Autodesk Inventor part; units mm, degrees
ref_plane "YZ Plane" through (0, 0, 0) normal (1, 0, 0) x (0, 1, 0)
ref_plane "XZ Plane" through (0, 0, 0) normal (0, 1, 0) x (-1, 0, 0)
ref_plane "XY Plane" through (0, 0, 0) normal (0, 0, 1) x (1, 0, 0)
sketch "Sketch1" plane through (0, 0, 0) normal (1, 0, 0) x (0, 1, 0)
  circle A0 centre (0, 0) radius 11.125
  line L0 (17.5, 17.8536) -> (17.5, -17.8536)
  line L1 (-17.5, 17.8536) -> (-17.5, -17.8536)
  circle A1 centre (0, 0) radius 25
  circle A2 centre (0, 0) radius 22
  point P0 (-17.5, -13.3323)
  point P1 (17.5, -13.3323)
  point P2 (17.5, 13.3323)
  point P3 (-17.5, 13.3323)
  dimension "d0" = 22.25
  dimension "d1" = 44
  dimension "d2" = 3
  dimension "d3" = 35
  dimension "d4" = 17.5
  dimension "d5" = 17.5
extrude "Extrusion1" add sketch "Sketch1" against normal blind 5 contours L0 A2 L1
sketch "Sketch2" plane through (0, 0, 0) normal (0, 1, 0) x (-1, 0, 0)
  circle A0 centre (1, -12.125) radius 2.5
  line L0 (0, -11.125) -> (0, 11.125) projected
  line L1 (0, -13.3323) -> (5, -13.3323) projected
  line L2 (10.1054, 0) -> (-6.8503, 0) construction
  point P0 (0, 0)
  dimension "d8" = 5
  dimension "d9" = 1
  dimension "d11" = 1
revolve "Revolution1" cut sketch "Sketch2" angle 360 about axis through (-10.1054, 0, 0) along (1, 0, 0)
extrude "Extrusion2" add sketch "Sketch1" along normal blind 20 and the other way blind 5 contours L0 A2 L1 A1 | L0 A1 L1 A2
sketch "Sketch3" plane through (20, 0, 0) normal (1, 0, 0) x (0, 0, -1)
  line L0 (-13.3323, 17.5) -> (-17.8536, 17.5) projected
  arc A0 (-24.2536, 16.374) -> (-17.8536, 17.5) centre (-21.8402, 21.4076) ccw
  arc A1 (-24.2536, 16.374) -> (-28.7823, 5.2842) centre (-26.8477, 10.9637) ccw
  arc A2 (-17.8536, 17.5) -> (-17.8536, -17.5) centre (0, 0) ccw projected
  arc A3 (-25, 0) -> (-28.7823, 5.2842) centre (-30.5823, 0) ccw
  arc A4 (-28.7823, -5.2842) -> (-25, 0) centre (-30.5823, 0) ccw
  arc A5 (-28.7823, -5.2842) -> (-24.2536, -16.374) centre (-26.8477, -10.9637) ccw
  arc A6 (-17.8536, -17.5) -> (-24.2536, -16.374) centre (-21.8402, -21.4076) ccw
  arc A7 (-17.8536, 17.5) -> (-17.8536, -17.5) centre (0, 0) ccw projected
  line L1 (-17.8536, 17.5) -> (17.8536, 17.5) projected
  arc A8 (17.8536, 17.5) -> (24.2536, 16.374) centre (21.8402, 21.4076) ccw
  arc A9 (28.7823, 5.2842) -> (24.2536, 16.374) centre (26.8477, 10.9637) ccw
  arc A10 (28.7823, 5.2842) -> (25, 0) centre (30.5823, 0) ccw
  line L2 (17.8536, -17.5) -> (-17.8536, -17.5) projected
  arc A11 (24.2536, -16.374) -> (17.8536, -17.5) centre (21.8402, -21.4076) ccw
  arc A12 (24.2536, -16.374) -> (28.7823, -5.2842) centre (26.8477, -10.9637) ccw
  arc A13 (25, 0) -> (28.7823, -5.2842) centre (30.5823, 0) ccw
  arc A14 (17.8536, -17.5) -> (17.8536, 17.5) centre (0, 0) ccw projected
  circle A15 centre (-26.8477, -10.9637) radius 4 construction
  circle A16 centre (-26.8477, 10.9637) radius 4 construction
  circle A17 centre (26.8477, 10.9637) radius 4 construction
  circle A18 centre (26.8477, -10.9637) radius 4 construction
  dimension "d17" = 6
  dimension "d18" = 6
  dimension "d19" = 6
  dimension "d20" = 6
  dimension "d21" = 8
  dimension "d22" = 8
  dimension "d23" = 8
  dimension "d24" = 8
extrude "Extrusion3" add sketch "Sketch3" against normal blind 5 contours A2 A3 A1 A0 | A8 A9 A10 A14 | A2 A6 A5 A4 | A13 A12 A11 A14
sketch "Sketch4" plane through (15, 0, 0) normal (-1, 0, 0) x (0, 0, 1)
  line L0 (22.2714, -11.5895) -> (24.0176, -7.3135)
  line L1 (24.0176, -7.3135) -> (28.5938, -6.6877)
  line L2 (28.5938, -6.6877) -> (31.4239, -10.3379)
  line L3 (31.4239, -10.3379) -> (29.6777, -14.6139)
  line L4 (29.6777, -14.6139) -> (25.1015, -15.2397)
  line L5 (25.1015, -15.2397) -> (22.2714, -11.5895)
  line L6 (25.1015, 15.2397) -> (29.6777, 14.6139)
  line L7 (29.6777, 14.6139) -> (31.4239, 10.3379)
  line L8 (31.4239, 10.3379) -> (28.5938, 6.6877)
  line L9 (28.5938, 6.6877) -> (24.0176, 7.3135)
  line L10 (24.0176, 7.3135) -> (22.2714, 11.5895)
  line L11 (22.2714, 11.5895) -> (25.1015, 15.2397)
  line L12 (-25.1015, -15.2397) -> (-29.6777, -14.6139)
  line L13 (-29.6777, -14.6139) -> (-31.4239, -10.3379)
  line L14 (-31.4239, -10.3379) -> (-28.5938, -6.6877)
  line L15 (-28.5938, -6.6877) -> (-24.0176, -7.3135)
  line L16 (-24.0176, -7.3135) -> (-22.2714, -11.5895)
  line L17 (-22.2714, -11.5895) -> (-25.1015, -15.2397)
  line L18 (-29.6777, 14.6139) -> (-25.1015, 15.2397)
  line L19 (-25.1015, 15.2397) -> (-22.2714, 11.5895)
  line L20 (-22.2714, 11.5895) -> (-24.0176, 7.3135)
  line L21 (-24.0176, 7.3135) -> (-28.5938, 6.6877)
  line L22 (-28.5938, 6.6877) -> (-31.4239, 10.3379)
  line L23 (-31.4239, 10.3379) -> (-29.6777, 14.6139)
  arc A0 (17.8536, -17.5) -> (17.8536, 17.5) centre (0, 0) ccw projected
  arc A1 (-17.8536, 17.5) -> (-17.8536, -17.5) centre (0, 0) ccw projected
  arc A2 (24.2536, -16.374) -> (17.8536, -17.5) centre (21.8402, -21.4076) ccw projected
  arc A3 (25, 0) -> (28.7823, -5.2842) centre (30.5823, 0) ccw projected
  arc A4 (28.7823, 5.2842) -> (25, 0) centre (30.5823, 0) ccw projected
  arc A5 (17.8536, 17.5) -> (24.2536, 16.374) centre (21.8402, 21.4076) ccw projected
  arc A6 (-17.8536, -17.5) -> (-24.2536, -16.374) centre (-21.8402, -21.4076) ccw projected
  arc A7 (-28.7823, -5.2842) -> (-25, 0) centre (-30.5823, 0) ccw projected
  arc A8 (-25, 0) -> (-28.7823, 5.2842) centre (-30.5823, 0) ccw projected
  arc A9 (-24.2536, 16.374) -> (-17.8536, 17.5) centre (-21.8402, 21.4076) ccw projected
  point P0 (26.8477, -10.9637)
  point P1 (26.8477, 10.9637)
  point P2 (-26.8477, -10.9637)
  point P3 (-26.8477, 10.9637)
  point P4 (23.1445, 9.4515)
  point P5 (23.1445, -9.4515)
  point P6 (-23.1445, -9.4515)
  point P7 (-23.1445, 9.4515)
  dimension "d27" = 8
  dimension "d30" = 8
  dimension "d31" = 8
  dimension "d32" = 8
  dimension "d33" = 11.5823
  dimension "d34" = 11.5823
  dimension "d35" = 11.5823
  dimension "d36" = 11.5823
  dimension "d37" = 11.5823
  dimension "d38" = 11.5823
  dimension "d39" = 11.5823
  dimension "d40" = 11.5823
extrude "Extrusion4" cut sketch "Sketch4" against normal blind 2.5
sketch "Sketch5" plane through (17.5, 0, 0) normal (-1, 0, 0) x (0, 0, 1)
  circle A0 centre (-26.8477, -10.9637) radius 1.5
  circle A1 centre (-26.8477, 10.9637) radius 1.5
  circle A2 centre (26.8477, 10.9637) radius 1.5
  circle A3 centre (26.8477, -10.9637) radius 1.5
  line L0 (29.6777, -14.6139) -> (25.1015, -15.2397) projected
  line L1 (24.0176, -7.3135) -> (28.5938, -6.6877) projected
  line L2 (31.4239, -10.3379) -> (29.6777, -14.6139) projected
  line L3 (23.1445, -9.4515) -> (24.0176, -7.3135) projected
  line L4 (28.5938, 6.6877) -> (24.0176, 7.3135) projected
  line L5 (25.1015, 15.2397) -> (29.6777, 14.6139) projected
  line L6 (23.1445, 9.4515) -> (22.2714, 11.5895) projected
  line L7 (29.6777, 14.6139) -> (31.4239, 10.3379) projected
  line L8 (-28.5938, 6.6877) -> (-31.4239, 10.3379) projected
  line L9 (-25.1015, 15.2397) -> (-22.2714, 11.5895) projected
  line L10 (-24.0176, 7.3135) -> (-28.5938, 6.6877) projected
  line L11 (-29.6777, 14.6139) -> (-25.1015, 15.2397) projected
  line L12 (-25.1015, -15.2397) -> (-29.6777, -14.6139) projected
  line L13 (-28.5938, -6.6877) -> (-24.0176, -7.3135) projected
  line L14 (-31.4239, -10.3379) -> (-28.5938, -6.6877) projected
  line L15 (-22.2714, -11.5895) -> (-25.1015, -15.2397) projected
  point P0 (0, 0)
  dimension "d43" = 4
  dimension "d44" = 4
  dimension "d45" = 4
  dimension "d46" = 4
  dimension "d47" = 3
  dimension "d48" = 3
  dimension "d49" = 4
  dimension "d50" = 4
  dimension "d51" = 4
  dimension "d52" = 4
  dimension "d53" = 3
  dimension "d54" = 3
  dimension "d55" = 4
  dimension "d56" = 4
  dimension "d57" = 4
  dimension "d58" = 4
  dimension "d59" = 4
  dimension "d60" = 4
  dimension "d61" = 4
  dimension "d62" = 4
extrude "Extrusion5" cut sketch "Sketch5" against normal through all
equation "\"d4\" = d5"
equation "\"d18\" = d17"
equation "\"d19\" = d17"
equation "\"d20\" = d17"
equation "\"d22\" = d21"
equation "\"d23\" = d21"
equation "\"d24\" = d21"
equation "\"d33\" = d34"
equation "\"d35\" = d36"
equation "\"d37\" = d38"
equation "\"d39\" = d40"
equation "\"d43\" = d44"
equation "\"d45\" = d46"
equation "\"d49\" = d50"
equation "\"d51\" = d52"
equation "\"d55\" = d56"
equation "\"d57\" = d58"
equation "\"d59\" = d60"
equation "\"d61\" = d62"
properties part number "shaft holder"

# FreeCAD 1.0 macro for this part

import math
import FreeCAD as App
import Part
import Sketcher


def add_polygon(sketch, points):
    """Adds a closed chain of lines whose ends are joined by coincident constraints."""
    first, n = sketch.GeometryCount, len(points)
    for a, b in zip(points, points[1:] + points[:1]):
        sketch.addGeometry(Part.LineSegment(App.Vector(*a, 0), App.Vector(*b, 0)), False)
    for i in range(n):
        sketch.addConstraint(Sketcher.Constraint("Coincident", first + i, 2, first + (i + 1) % n, 1))

doc = App.newDocument("Part")
body = doc.addObject("PartDesign::Body", "Body")

# Sketch on YZ plane
sketch1 = body.newObject("Sketcher::SketchObject", "Sketch")
sketch1.AttachmentSupport = (doc.getObject("YZ_Plane"), [""])
sketch1.MapMode = "FlatFace"
sketch1.addGeometry(Part.LineSegment(App.Vector(18, -13, 0), App.Vector(18, 13, 0)), False)
sketch1.addGeometry(Part.ArcOfCircle(Part.Circle(App.Vector(0, 0, 0), App.Vector(0, 0, 1), 22), math.radians(37), math.radians(143)), False)
sketch1.addGeometry(Part.LineSegment(App.Vector(-18, 13, 0), App.Vector(-18, -13, 0)), False)
sketch1.addGeometry(Part.ArcOfCircle(Part.Circle(App.Vector(0, 0, 0), App.Vector(0, 0, 1), 22), math.radians(-143), math.radians(-37)), False)
sketch1.addGeometry(Part.Circle(App.Vector(0, 0, 0), App.Vector(0, 0, 1), 11), False)
sketch1.addConstraint(Sketcher.Constraint("Coincident", 0, 2, 1, 1))
sketch1.addConstraint(Sketcher.Constraint("Coincident", 1, 2, 2, 1))
sketch1.addConstraint(Sketcher.Constraint("Coincident", 2, 2, 3, 1))
sketch1.addConstraint(Sketcher.Constraint("Coincident", 3, 2, 0, 1))
sketch1.addConstraint(Sketcher.Constraint("Vertical", 0))
sketch1.addConstraint(Sketcher.Constraint("Vertical", 2))
sketch1.addConstraint(Sketcher.Constraint("Coincident", 1, 3, -1, 1))
sketch1.addConstraint(Sketcher.Constraint("Coincident", 3, 3, -1, 1))
sketch1.addConstraint(Sketcher.Constraint("Coincident", 4, 3, -1, 1))
sketch1.addConstraint(Sketcher.Constraint("Equal", 1, 3))
sketch1.addConstraint(Sketcher.Constraint("Horizontal", 0, 2, 1, 2))
sketch1.addConstraint(Sketcher.Constraint("Radius", 1, 22.0))
sketch1.addConstraint(Sketcher.Constraint("Diameter", 4, 22.25))
sketch1.addConstraint(Sketcher.Constraint("DistanceX", 1, 2, 0, 2, 35.0))
pad1 = body.newObject("PartDesign::Pad", "Pad")
pad1.Profile = sketch1
pad1.Length = 5
pad1.Reversed = True

# Sketch on XZ plane
sketch2 = body.newObject("Sketcher::SketchObject", "Sketch001")
sketch2.AttachmentSupport = (doc.getObject("XZ_Plane"), [""])
sketch2.MapMode = "FlatFace"
sketch2.addGeometry(Part.Circle(App.Vector(-1, -12.1, 0), App.Vector(0, 0, 1), 2.5), False)
sketch2.addConstraint(Sketcher.Constraint("Diameter", 0, 5.0))
sketch2.addConstraint(Sketcher.Constraint("DistanceX", 0, 3, -1, 1, 1.0))
sketch2.addConstraint(Sketcher.Constraint("DistanceY", 0, 3, -1, 1, 12.125))
groove = body.newObject("PartDesign::Groove", "Groove")
groove.Profile = sketch2
groove.ReferenceAxis = (sketch2, ["H_Axis"])
groove.Angle = 360

# Sketch on YZ plane
sketch3 = body.newObject("Sketcher::SketchObject", "Sketch002")
sketch3.AttachmentSupport = (doc.getObject("YZ_Plane"), [""])
sketch3.MapMode = "FlatFace"
sketch3.addGeometry(Part.LineSegment(App.Vector(17.5, 13.3, 0), App.Vector(17.5, 17.9, 0)), False)
sketch3.addGeometry(Part.ArcOfCircle(Part.Circle(App.Vector(0, 0, 0), App.Vector(0, 0, 1), 25), math.radians(46), math.radians(134)), False)
sketch3.addGeometry(Part.LineSegment(App.Vector(-17.5, 17.9, 0), App.Vector(-17.5, 13.3, 0)), False)
sketch3.addGeometry(Part.ArcOfCircle(Part.Circle(App.Vector(0, 0, 0), App.Vector(0, 0, 1), 22), math.radians(37), math.radians(143)), False)
sketch3.addGeometry(Part.LineSegment(App.Vector(17.5, -17.9, 0), App.Vector(17.5, -13.3, 0)), False)
sketch3.addGeometry(Part.ArcOfCircle(Part.Circle(App.Vector(0, 0, 0), App.Vector(0, 0, 1), 22), math.radians(-143), math.radians(-37)), False)
sketch3.addGeometry(Part.LineSegment(App.Vector(-17.5, -13.3, 0), App.Vector(-17.5, -17.9, 0)), False)
sketch3.addGeometry(Part.ArcOfCircle(Part.Circle(App.Vector(0, 0, 0), App.Vector(0, 0, 1), 25), math.radians(-134), math.radians(-46)), False)
sketch3.addConstraint(Sketcher.Constraint("Coincident", 0, 2, 1, 1))
sketch3.addConstraint(Sketcher.Constraint("Coincident", 1, 2, 2, 1))
sketch3.addConstraint(Sketcher.Constraint("Coincident", 2, 2, 3, 2))
sketch3.addConstraint(Sketcher.Constraint("Coincident", 3, 1, 0, 1))
sketch3.addConstraint(Sketcher.Constraint("Coincident", 4, 2, 5, 2))
sketch3.addConstraint(Sketcher.Constraint("Coincident", 5, 1, 6, 1))
sketch3.addConstraint(Sketcher.Constraint("Coincident", 6, 2, 7, 1))
sketch3.addConstraint(Sketcher.Constraint("Coincident", 7, 2, 4, 1))
sketch3.addConstraint(Sketcher.Constraint("Vertical", 0))
sketch3.addConstraint(Sketcher.Constraint("Vertical", 2))
sketch3.addConstraint(Sketcher.Constraint("Vertical", 4))
sketch3.addConstraint(Sketcher.Constraint("Vertical", 6))
sketch3.addConstraint(Sketcher.Constraint("Coincident", 1, 3, -1, 1))
sketch3.addConstraint(Sketcher.Constraint("Coincident", 3, 3, -1, 1))
sketch3.addConstraint(Sketcher.Constraint("Coincident", 5, 3, -1, 1))
sketch3.addConstraint(Sketcher.Constraint("Coincident", 7, 3, -1, 1))
sketch3.addConstraint(Sketcher.Constraint("Equal", 3, 5))
sketch3.addConstraint(Sketcher.Constraint("Equal", 1, 7))
sketch3.addConstraint(Sketcher.Constraint("Horizontal", 0, 2, 1, 2))
sketch3.addConstraint(Sketcher.Constraint("Horizontal", 4, 2, 5, 1))
sketch3.addConstraint(Sketcher.Constraint("Vertical", 3, 1, 4, 2))
sketch3.addConstraint(Sketcher.Constraint("Radius", 3, 22.0))
sketch3.addConstraint(Sketcher.Constraint("Radius", 1, 25.0))
sketch3.addConstraint(Sketcher.Constraint("DistanceX", 1, 2, 0, 2, 35.0))
pad2 = body.newObject("PartDesign::Pad", "Pad001")
pad2.Profile = sketch3
pad2.Type = "TwoLengths"
pad2.Length = 20
pad2.Length2 = 5

# Sketch on YZ plane
sketch4 = body.newObject("Sketcher::SketchObject", "Sketch003")
sketch4.AttachmentSupport = (doc.getObject("YZ_Plane"), [""])
sketch4.MapMode = "FlatFace"
sketch4.AttachmentOffset = App.Placement(App.Vector(0, 0, 20), App.Rotation())
sketch4.addGeometry(Part.ArcOfCircle(Part.Circle(App.Vector(0, 0, 0), App.Vector(0, 0, 1), 25), math.radians(46), math.radians(90)), False)
sketch4.addGeometry(Part.ArcOfCircle(Part.Circle(App.Vector(21, 22, 0), App.Vector(0, 0, 1), 6), math.radians(154), math.radians(226)), False)
sketch4.addGeometry(Part.ArcOfCircle(Part.Circle(App.Vector(11, 27, 0), App.Vector(0, 0, 1), 6), math.radians(-26), math.radians(161)), False)
sketch4.addGeometry(Part.ArcOfCircle(Part.Circle(App.Vector(0, 31, 0), App.Vector(0, 0, 1), 6), math.radians(-90), math.radians(-19)), False)
sketch4.addGeometry(Part.ArcOfCircle(Part.Circle(App.Vector(21, -22, 0), App.Vector(0, 0, 1), 6), math.radians(134), math.radians(206)), False)
sketch4.addGeometry(Part.ArcOfCircle(Part.Circle(App.Vector(0, 0, 0), App.Vector(0, 0, 1), 25), math.radians(-90), math.radians(-46)), False)
sketch4.addGeometry(Part.ArcOfCircle(Part.Circle(App.Vector(0, -31, 0), App.Vector(0, 0, 1), 6), math.radians(19), math.radians(90)), False)
sketch4.addGeometry(Part.ArcOfCircle(Part.Circle(App.Vector(11, -27, 0), App.Vector(0, 0, 1), 6), math.radians(-161), math.radians(26)), False)
sketch4.addGeometry(Part.ArcOfCircle(Part.Circle(App.Vector(0, 0, 0), App.Vector(0, 0, 1), 25), math.radians(90), math.radians(134)), False)
sketch4.addGeometry(Part.ArcOfCircle(Part.Circle(App.Vector(0, 31, 0), App.Vector(0, 0, 1), 6), math.radians(-161), math.radians(-90)), False)
sketch4.addGeometry(Part.ArcOfCircle(Part.Circle(App.Vector(-11, 27, 0), App.Vector(0, 0, 1), 6), math.radians(19), math.radians(206)), False)
sketch4.addGeometry(Part.ArcOfCircle(Part.Circle(App.Vector(-21, 22, 0), App.Vector(0, 0, 1), 6), math.radians(-46), math.radians(26)), False)
sketch4.addGeometry(Part.ArcOfCircle(Part.Circle(App.Vector(0, -31, 0), App.Vector(0, 0, 1), 6), math.radians(90), math.radians(161)), False)
sketch4.addGeometry(Part.ArcOfCircle(Part.Circle(App.Vector(0, 0, 0), App.Vector(0, 0, 1), 25), math.radians(-134), math.radians(-90)), False)
sketch4.addGeometry(Part.ArcOfCircle(Part.Circle(App.Vector(-21, -22, 0), App.Vector(0, 0, 1), 6), math.radians(-26), math.radians(46)), False)
sketch4.addGeometry(Part.ArcOfCircle(Part.Circle(App.Vector(-11, -27, 0), App.Vector(0, 0, 1), 6), math.radians(154), math.radians(341)), False)
sketch4.addConstraint(Sketcher.Constraint("Tangent", 0, 1, 1, 2))
sketch4.addConstraint(Sketcher.Constraint("Tangent", 1, 1, 2, 1))
sketch4.addConstraint(Sketcher.Constraint("Tangent", 2, 2, 3, 2))
sketch4.addConstraint(Sketcher.Constraint("Tangent", 3, 1, 0, 2))
sketch4.addConstraint(Sketcher.Constraint("Tangent", 4, 1, 5, 2))
sketch4.addConstraint(Sketcher.Constraint("Tangent", 5, 1, 6, 2))
sketch4.addConstraint(Sketcher.Constraint("Tangent", 6, 1, 7, 1))
sketch4.addConstraint(Sketcher.Constraint("Tangent", 7, 2, 4, 2))
sketch4.addConstraint(Sketcher.Constraint("Tangent", 8, 1, 9, 2))
sketch4.addConstraint(Sketcher.Constraint("Tangent", 9, 1, 10, 1))
sketch4.addConstraint(Sketcher.Constraint("Tangent", 10, 2, 11, 2))
sketch4.addConstraint(Sketcher.Constraint("Tangent", 11, 1, 8, 2))
sketch4.addConstraint(Sketcher.Constraint("Tangent", 12, 1, 13, 2))
sketch4.addConstraint(Sketcher.Constraint("Tangent", 13, 1, 14, 2))
sketch4.addConstraint(Sketcher.Constraint("Tangent", 14, 1, 15, 1))
sketch4.addConstraint(Sketcher.Constraint("Tangent", 15, 2, 12, 2))
sketch4.addConstraint(Sketcher.Constraint("Coincident", 0, 3, -1, 1))
sketch4.addConstraint(Sketcher.Constraint("Coincident", 5, 3, -1, 1))
sketch4.addConstraint(Sketcher.Constraint("Coincident", 8, 3, -1, 1))
sketch4.addConstraint(Sketcher.Constraint("Coincident", 13, 3, -1, 1))
sketch4.addConstraint(Sketcher.Constraint("Coincident", 9, 3, 3, 3))
sketch4.addConstraint(Sketcher.Constraint("Coincident", 12, 3, 6, 3))
sketch4.addConstraint(Sketcher.Constraint("Equal", 1, 3))
sketch4.addConstraint(Sketcher.Constraint("Equal", 3, 4))
sketch4.addConstraint(Sketcher.Constraint("Equal", 0, 5))
sketch4.addConstraint(Sketcher.Constraint("Equal", 4, 6))
sketch4.addConstraint(Sketcher.Constraint("Equal", 2, 7))
sketch4.addConstraint(Sketcher.Constraint("Equal", 5, 8))
sketch4.addConstraint(Sketcher.Constraint("Equal", 7, 10))
sketch4.addConstraint(Sketcher.Constraint("Equal", 9, 11))
sketch4.addConstraint(Sketcher.Constraint("Equal", 11, 12))
sketch4.addConstraint(Sketcher.Constraint("Equal", 12, 14))
sketch4.addConstraint(Sketcher.Constraint("Equal", 10, 15))
sketch4.addConstraint(Sketcher.Constraint("Symmetric", 7, 3, 10, 3, -1, 1))
sketch4.addConstraint(Sketcher.Constraint("Symmetric", 2, 3, 10, 3, -2))
sketch4.addConstraint(Sketcher.Constraint("Horizontal", 4, 3, 14, 3))
sketch4.addConstraint(Sketcher.Constraint("Radius", 2, 6.0))
sketch4.addConstraint(Sketcher.Constraint("Radius", 0, 25.0))
sketch4.addConstraint(Sketcher.Constraint("DistanceX", -1, 1, 0, 1, 17.5))
sketch4.addConstraint(Sketcher.Constraint("Radius", 1, 5.5823))
pad3 = body.newObject("PartDesign::Pad", "Pad002")
pad3.Profile = sketch4
pad3.Length = 5
pad3.Reversed = True

# Sketch on YZ plane
sketch5 = body.newObject("Sketcher::SketchObject", "Sketch004")
sketch5.AttachmentSupport = (doc.getObject("YZ_Plane"), [""])
sketch5.MapMode = "FlatFace"
sketch5.AttachmentOffset = App.Placement(App.Vector(0, 0, 15), App.Rotation())
add_polygon(sketch5, [(11.6, 22.3), (7.3, 24), (6.7, 28.6), (10.3, 31.4), (14.6, 29.7), (15.2, 25.1)])  # lines 0-5
add_polygon(sketch5, [(-7.3, 24), (-11.6, 22.3), (-15.2, 25.1), (-14.6, 29.7), (-10.3, 31.4), (-6.7, 28.6)])  # lines 6-11
add_polygon(sketch5, [(7.3, -24), (11.6, -22.3), (15.2, -25.1), (14.6, -29.7), (10.3, -31.4), (6.7, -28.6)])  # lines 12-17
add_polygon(sketch5, [(-14.6, -29.7), (-15.2, -25.1), (-11.6, -22.3), (-7.3, -24), (-6.7, -28.6), (-10.3, -31.4)])  # lines 18-23
sketch5.addConstraint(Sketcher.Constraint("Symmetric", 6, 2, 12, 2, -1, 1))
sketch5.addConstraint(Sketcher.Constraint("Symmetric", 7, 2, 13, 2, -1, 1))
sketch5.addConstraint(Sketcher.Constraint("Symmetric", 8, 2, 14, 2, -1, 1))
sketch5.addConstraint(Sketcher.Constraint("Symmetric", 9, 2, 15, 2, -1, 1))
sketch5.addConstraint(Sketcher.Constraint("Symmetric", 10, 2, 16, 2, -1, 1))
sketch5.addConstraint(Sketcher.Constraint("Symmetric", 11, 2, 17, 2, -1, 1))
sketch5.addConstraint(Sketcher.Constraint("Symmetric", 4, 2, 18, 2, -1, 1))
sketch5.addConstraint(Sketcher.Constraint("Symmetric", 5, 2, 19, 2, -1, 1))
sketch5.addConstraint(Sketcher.Constraint("Symmetric", 0, 2, 20, 2, -1, 1))
sketch5.addConstraint(Sketcher.Constraint("Symmetric", 1, 2, 21, 2, -1, 1))
sketch5.addConstraint(Sketcher.Constraint("Symmetric", 2, 2, 22, 2, -1, 1))
sketch5.addConstraint(Sketcher.Constraint("Symmetric", 3, 2, 23, 2, -1, 1))
sketch5.addConstraint(Sketcher.Constraint("Symmetric", 5, 2, 6, 2, -2))
sketch5.addConstraint(Sketcher.Constraint("Symmetric", 4, 2, 7, 2, -2))
sketch5.addConstraint(Sketcher.Constraint("Symmetric", 3, 2, 8, 2, -2))
sketch5.addConstraint(Sketcher.Constraint("Symmetric", 2, 2, 9, 2, -2))
sketch5.addConstraint(Sketcher.Constraint("Symmetric", 1, 2, 10, 2, -2))
sketch5.addConstraint(Sketcher.Constraint("Symmetric", 0, 2, 11, 2, -2))
sketch5.addConstraint(Sketcher.Constraint("Parallel", 0, 3))
sketch5.addConstraint(Sketcher.Constraint("Parallel", 1, 4))
sketch5.addConstraint(Sketcher.Constraint("Parallel", 2, 5))
sketch5.addConstraint(Sketcher.Constraint("Equal", 0, 1))
sketch5.addConstraint(Sketcher.Constraint("Equal", 1, 2))
sketch5.addConstraint(Sketcher.Constraint("Equal", 2, 3))
sketch5.addConstraint(Sketcher.Constraint("DistanceY", 1, 2, 2, 2, 2.83))
sketch5.addConstraint(Sketcher.Constraint("DistanceY", 0, 2, 3, 2, 5.66))
sketch5.addConstraint(Sketcher.Constraint("DistanceX", -1, 1, 2, 2, 10.338))
sketch5.addConstraint(Sketcher.Constraint("DistanceY", -1, 1, 2, 2, 31.424))
sketch5.addConstraint(Sketcher.Constraint("DistanceX", -1, 1, 3, 2, 14.614))
sketch5.addConstraint(Sketcher.Constraint("DistanceY", 1, 2, 3, 2, 1.084))
pocket1 = body.newObject("PartDesign::Pocket", "Pocket")
pocket1.Profile = sketch5
pocket1.Length = 2.5
pocket1.Reversed = True

# Sketch on YZ plane
sketch6 = body.newObject("Sketcher::SketchObject", "Sketch005")
sketch6.AttachmentSupport = (doc.getObject("YZ_Plane"), [""])
sketch6.MapMode = "FlatFace"
sketch6.AttachmentOffset = App.Placement(App.Vector(0, 0, 17.5), App.Rotation())
sketch6.addGeometry(Part.Circle(App.Vector(-11, -26.8, 0), App.Vector(0, 0, 1), 1.5), False)
sketch6.addGeometry(Part.Circle(App.Vector(11, -26.8, 0), App.Vector(0, 0, 1), 1.5), False)
sketch6.addGeometry(Part.Circle(App.Vector(11, 26.8, 0), App.Vector(0, 0, 1), 1.5), False)
sketch6.addGeometry(Part.Circle(App.Vector(-11, 26.8, 0), App.Vector(0, 0, 1), 1.5), False)
sketch6.addConstraint(Sketcher.Constraint("Equal", 0, 1))
sketch6.addConstraint(Sketcher.Constraint("Equal", 1, 2))
sketch6.addConstraint(Sketcher.Constraint("Equal", 2, 3))
sketch6.addConstraint(Sketcher.Constraint("Symmetric", 0, 3, 2, 3, -1, 1))
sketch6.addConstraint(Sketcher.Constraint("Symmetric", 1, 3, 3, 3, -1, 1))
sketch6.addConstraint(Sketcher.Constraint("Symmetric", 0, 3, 1, 3, -2))
sketch6.addConstraint(Sketcher.Constraint("Diameter", 0, 3.0))
sketch6.addConstraint(Sketcher.Constraint("DistanceX", 0, 3, -1, 1, 10.9637))
sketch6.addConstraint(Sketcher.Constraint("DistanceY", 0, 3, -1, 1, 26.8477))
pocket2 = body.newObject("PartDesign::Pocket", "Pocket001")
pocket2.Profile = sketch6
pocket2.Type = "ThroughAll"
pocket2.Reversed = True

doc.recompute()
